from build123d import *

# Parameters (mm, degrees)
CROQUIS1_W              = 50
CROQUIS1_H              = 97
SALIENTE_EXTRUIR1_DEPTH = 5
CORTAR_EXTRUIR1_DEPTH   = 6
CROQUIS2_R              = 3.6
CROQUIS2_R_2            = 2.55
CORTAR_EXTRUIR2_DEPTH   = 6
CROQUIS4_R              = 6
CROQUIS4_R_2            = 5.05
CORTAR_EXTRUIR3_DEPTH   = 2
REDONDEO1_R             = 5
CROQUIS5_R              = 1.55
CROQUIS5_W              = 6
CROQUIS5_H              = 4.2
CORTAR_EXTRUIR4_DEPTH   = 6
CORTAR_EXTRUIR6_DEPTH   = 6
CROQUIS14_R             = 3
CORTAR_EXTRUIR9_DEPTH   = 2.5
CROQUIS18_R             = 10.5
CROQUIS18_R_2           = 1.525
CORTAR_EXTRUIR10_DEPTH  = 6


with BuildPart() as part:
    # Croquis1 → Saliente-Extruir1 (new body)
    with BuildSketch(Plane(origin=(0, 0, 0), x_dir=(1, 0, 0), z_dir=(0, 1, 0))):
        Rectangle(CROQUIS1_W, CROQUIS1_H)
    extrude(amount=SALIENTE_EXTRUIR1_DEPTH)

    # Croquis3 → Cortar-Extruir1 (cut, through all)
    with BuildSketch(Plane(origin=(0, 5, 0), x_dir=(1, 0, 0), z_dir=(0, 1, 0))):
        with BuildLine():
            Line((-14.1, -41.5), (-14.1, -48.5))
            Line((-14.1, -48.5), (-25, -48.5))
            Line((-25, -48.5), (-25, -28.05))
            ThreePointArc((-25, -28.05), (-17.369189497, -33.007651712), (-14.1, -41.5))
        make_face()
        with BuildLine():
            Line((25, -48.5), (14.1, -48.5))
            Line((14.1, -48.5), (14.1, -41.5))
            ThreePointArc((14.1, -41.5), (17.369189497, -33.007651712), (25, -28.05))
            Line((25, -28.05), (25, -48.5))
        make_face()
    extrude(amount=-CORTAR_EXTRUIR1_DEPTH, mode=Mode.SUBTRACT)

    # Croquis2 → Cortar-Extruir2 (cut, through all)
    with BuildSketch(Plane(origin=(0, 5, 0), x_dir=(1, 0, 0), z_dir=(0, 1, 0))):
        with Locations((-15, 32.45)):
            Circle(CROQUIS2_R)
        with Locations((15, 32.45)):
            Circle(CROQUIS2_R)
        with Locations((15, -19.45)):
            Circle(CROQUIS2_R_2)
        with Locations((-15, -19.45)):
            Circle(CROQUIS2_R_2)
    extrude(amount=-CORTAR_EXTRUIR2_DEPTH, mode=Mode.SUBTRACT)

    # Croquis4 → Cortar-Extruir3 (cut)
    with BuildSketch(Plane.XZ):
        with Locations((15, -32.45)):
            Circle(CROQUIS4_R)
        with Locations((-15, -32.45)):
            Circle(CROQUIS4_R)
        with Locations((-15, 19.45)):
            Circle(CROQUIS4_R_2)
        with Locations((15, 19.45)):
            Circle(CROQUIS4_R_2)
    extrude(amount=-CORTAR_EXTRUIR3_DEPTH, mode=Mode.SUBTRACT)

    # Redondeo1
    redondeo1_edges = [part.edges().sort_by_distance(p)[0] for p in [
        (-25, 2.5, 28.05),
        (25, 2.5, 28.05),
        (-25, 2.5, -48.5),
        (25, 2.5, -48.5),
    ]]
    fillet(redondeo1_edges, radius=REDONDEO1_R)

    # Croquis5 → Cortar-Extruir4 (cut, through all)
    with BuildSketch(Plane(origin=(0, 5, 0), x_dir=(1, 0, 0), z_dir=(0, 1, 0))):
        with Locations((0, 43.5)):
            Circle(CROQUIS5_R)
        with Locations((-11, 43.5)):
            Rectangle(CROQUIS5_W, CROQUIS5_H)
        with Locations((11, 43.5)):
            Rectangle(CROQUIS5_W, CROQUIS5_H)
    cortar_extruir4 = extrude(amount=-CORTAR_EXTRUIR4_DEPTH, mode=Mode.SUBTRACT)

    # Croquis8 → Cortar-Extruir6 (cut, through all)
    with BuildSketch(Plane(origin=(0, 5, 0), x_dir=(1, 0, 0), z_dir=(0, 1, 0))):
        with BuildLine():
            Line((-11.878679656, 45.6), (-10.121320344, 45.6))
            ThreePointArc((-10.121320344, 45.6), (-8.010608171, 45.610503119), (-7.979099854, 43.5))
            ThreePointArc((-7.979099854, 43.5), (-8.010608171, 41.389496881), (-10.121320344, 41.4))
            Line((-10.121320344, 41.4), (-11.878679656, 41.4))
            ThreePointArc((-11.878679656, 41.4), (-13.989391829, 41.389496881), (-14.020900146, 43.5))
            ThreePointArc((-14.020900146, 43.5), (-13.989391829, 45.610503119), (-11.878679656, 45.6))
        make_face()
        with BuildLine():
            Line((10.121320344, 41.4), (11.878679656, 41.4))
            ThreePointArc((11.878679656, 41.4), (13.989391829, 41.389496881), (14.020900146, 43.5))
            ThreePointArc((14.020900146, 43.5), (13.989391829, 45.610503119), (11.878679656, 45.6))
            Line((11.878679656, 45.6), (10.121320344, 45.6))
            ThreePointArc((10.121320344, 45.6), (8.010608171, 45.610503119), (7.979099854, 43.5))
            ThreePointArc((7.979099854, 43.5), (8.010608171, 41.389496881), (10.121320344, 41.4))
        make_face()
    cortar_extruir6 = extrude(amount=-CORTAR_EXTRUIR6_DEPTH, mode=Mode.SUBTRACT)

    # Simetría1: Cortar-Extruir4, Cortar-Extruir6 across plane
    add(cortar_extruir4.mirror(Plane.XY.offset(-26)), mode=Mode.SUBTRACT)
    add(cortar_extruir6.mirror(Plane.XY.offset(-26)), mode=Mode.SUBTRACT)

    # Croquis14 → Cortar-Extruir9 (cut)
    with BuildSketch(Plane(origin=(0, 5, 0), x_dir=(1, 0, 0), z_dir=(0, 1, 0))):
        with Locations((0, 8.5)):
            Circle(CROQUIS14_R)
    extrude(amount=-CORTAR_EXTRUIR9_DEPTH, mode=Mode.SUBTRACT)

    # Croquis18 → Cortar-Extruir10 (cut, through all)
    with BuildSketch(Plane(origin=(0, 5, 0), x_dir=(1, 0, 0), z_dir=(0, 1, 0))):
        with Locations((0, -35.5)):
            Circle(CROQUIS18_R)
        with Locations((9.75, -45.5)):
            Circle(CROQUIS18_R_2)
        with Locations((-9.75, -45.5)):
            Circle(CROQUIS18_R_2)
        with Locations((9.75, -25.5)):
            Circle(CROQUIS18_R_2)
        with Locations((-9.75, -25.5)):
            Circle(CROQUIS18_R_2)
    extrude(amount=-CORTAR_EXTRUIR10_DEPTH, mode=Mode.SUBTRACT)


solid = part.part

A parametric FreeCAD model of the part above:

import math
import FreeCAD as App
import Part
import Sketcher
from FreeCAD import Vector


def edges_at(feature, points):
    """Names of the edges that pass closest to the given points."""
    edges = feature.Shape.Edges
    near = lambda p: min(range(len(edges)), key=lambda i: edges[i].distToShape(Part.Vertex(*p))[0])
    return sorted({f"Edge{near(p) + 1}" for p in points})


def add_polygon(sketch, points):
    """Adds a closed chain of lines whose ends are joined by coincident constraints."""
    first, n = sketch.GeometryCount, len(points)
    for a, b in zip(points, points[1:] + points[:1]):
        sketch.addGeometry(Part.LineSegment(App.Vector(*a, 0), App.Vector(*b, 0)), False)
    for i in range(n):
        sketch.addConstraint(Sketcher.Constraint("Coincident", first + i, 2, first + (i + 1) % n, 1))

doc = App.newDocument("Part")
body = doc.addObject("PartDesign::Body", "Body")

# Sketch on XZ plane
sketch1 = body.newObject("Sketcher::SketchObject", "Sketch")
sketch1.AttachmentSupport = (doc.getObject("XZ_Plane"), [""])
sketch1.MapMode = "FlatFace"
add_polygon(sketch1, [(-25, -48.5), (-25, 48.5), (25, 48.5), (25, -48.5)])  # lines 0-3
sketch1.addConstraint([
    Sketcher.Constraint("Vertical", 0),
    Sketcher.Constraint("Horizontal", 1),
    Sketcher.Constraint("Vertical", 2),
    Sketcher.Constraint("Horizontal", 3),
    Sketcher.Constraint("Symmetric", 0, 2, 2, 2, -1, 1),
    Sketcher.Constraint("DistanceX", 1, 1, 1, 2, 50.0),
    Sketcher.Constraint("DistanceY", 0, 1, 0, 2, 97.0),
])
pad1 = body.newObject("PartDesign::Pad", "Pad")
pad1.Profile = sketch1
pad1.Length = 5
pad1.Reversed = True

# Sketch on XZ plane
sketch2 = body.newObject("Sketcher::SketchObject", "Sketch001")
sketch2.AttachmentSupport = (doc.getObject("XZ_Plane"), [""])
sketch2.MapMode = "FlatFace"
sketch2.AttachmentOffset = App.Placement(Vector(0, 0, -5), App.Rotation())
sketch2.addGeometry([
    Part.LineSegment(Vector(-14.1, 48.5, 0), Vector(-14.1, 41.5, 0)),  # 0
    Part.ArcOfCircle(Part.Circle(Vector(-28.828589, 42.294452, 0), Vector(0, 0, 1), 14.75), math.radians(-74.955725), math.radians(-3.087509)),  # 1
    Part.LineSegment(Vector(-25, 28.05, 0), Vector(-25, 48.5, 0)),  # 2
    Part.LineSegment(Vector(-25, 48.5, 0), Vector(-14.1, 48.5, 0)),  # 3
    Part.LineSegment(Vector(14.1, 48.5, 0), Vector(25, 48.5, 0)),  # 4
    Part.LineSegment(Vector(25, 48.5, 0), Vector(25, 28.05, 0)),  # 5
    Part.ArcOfCircle(Part.Circle(Vector(28.828589, 42.294452, 0), Vector(0, 0, 1), 14.75), math.radians(-176.912491), math.radians(-105.044275)),  # 6
    Part.LineSegment(Vector(14.1, 41.5, 0), Vector(14.1, 48.5, 0)),  # 7
], False)
sketch2.addConstraint([
    Sketcher.Constraint("Coincident", 0, 2, 1, 2),
    Sketcher.Constraint("Coincident", 1, 1, 2, 1),
    Sketcher.Constraint("Coincident", 2, 2, 3, 1),
    Sketcher.Constraint("Coincident", 3, 2, 0, 1),
    Sketcher.Constraint("Coincident", 4, 2, 5, 1),
    Sketcher.Constraint("Coincident", 5, 2, 6, 2),
    Sketcher.Constraint("Coincident", 6, 1, 7, 1),
    Sketcher.Constraint("Coincident", 7, 2, 4, 1),
    Sketcher.Constraint("Vertical", 0),
    Sketcher.Constraint("Vertical", 2),
    Sketcher.Constraint("Horizontal", 3),
    Sketcher.Constraint("Horizontal", 4),
    Sketcher.Constraint("Vertical", 5),
    Sketcher.Constraint("Vertical", 7),
    Sketcher.Constraint("Equal", 1, 6),
    Sketcher.Constraint("Symmetric", 1, 3, 6, 3, -2),
    Sketcher.Constraint("Symmetric", 2, 2, 4, 2, -2),
    Sketcher.Constraint("Horizontal", 0, 2, 6, 1),
    Sketcher.Constraint("DistanceY", 0, 2, 0, 1, 7.0),
    Sketcher.Constraint("Radius", 1, 14.75),
    Sketcher.Constraint("DistanceX", 3, 1, 3, 2, 10.9),
    Sketcher.Constraint("DistanceX", 1, 1, -1, 1, 25.0),
    Sketcher.Constraint("DistanceY", 2, 1, 2, 2, 20.45),
    Sketcher.Constraint("DistanceY", -1, 1, 0, 2, 41.5),
])
pocket1 = body.newObject("PartDesign::Pocket", "Pocket")
pocket1.Profile = sketch2
pocket1.Type = "ThroughAll"
pocket1.Reversed = True

# Sketch on XZ plane
sketch3 = body.newObject("Sketcher::SketchObject", "Sketch002")
sketch3.AttachmentSupport = (doc.getObject("XZ_Plane"), [""])
sketch3.MapMode = "FlatFace"
sketch3.AttachmentOffset = App.Placement(Vector(0, 0, -5), App.Rotation())
sketch3.addGeometry([
    Part.Circle(Vector(-15, -32.45, 0), Vector(0, 0, 1), 3.6),
    Part.Circle(Vector(15, -32.45, 0), Vector(0, 0, 1), 3.6),
    Part.Circle(Vector(15, 19.45, 0), Vector(0, 0, 1), 2.55),
    Part.Circle(Vector(-15, 19.45, 0), Vector(0, 0, 1), 2.55),
], False)
sketch3.addConstraint([
    Sketcher.Constraint("Equal", 0, 1),
    Sketcher.Constraint("Equal", 2, 3),
    Sketcher.Constraint("Symmetric", 0, 3, 1, 3, -2),
    Sketcher.Constraint("Symmetric", 2, 3, 3, 3, -2),
    Sketcher.Constraint("Vertical", 1, 3, 2, 3),
    Sketcher.Constraint("Diameter", 0, 7.2),
    Sketcher.Constraint("Diameter", 2, 5.1),
    Sketcher.Constraint("DistanceX", 0, 3, -1, 1, 15.0),
    Sketcher.Constraint("DistanceY", 1, 3, 2, 3, 51.9),
    Sketcher.Constraint("DistanceY", 0, 3, -1, 1, 32.45),
])
pocket2 = body.newObject("PartDesign::Pocket", "Pocket001")
pocket2.Profile = sketch3
pocket2.Type = "ThroughAll"
pocket2.Reversed = True

# Sketch on XZ plane
sketch4 = body.newObject("Sketcher::SketchObject", "Sketch003")
sketch4.AttachmentSupport = (doc.getObject("XZ_Plane"), [""])
sketch4.MapMode = "FlatFace"
sketch4.addGeometry([
    Part.Circle(Vector(15, -32.45, 0), Vector(0, 0, 1), 6),
    Part.Circle(Vector(-15, -32.45, 0), Vector(0, 0, 1), 6),
    Part.Circle(Vector(-15, 19.45, 0), Vector(0, 0, 1), 5.05),
    Part.Circle(Vector(15, 19.45, 0), Vector(0, 0, 1), 5.05),
], False)
sketch4.addConstraint([
    Sketcher.Constraint("Equal", 0, 1),
    Sketcher.Constraint("Equal", 2, 3),
    Sketcher.Constraint("Symmetric", 0, 3, 1, 3, -2),
    Sketcher.Constraint("Symmetric", 2, 3, 3, 3, -2),
    Sketcher.Constraint("Vertical", 1, 3, 2, 3),
    Sketcher.Constraint("Diameter", 0, 12.0),
    Sketcher.Constraint("Diameter", 2, 10.1),
    Sketcher.Constraint("DistanceX", -1, 1, 0, 3, 15.0),
    Sketcher.Constraint("DistanceY", 1, 3, 2, 3, 51.9),
    Sketcher.Constraint("DistanceY", 0, 3, -1, 1, 32.45),
])
pocket3 = body.newObject("PartDesign::Pocket", "Pocket002")
pocket3.Profile = sketch4
pocket3.Length = 2
doc.recompute()

fillet = body.newObject("PartDesign::Fillet", "Fillet")
fillet.Base = (pocket3, edges_at(pocket3, [
    (-25, 2.5, 28.05),
    (25, 2.5, 28.05),
    (-25, 2.5, -48.5),
    (25, 2.5, -48.5),
]))
fillet.Radius = 5

# Sketch on XZ plane
sketch5 = body.newObject("Sketcher::SketchObject", "Sketch004")
sketch5.AttachmentSupport = (doc.getObject("XZ_Plane"), [""])
sketch5.MapMode = "FlatFace"
sketch5.AttachmentOffset = App.Placement(Vector(0, 0, -5), App.Rotation())
sketch5.addGeometry(Part.Circle(Vector(0, -43.5, 0), Vector(0, 0, 1), 1.55), False)  # 0
add_polygon(sketch5, [(-14, -45.6), (-14, -41.4), (-8, -41.4), (-8, -45.6)])  # lines 1-4
add_polygon(sketch5, [(8, -45.6), (8, -41.4), (14, -41.4), (14, -45.6)])  # lines 5-8
sketch5.addConstraint([
    Sketcher.Constraint("Vertical", 1),
    Sketcher.Constraint("Horizontal", 2),
    Sketcher.Constraint("Vertical", 3),
    Sketcher.Constraint("Horizontal", 4),
    Sketcher.Constraint("Vertical", 5),
    Sketcher.Constraint("Horizontal", 6),
    Sketcher.Constraint("Vertical", 7),
    Sketcher.Constraint("Horizontal", 8),
    Sketcher.Constraint("Symmetric", 2, 2, 5, 2, -2),
    Sketcher.Constraint("Symmetric", 4, 2, 7, 2, -2),
    Sketcher.Constraint("PointOnObject", 0, 3, -2),
    Sketcher.Constraint("Diameter", 0, 3.1),
    Sketcher.Constraint("DistanceX", 2, 1, 2, 2, 6.0),
    Sketcher.Constraint("DistanceY", 1, 1, 1, 2, 4.2),
    Sketcher.Constraint("DistanceX", 1, 2, -1, 1, 14.0),
    Sketcher.Constraint("DistanceY", 0, 3, -1, 1, 43.5),
    Sketcher.Constraint("DistanceY", 1, 2, -1, 1, 41.4),
])
pocket4 = body.newObject("PartDesign::Pocket", "Pocket003")
pocket4.Profile = sketch5
pocket4.Type = "ThroughAll"
pocket4.Reversed = True

# Sketch on XZ plane
sketch6 = body.newObject("Sketcher::SketchObject", "Sketch005")
sketch6.AttachmentSupport = (doc.getObject("XZ_Plane"), [""])
sketch6.MapMode = "FlatFace"
sketch6.AttachmentOffset = App.Placement(Vector(0, 0, -5), App.Rotation())
sketch6.addGeometry([
    Part.LineSegment(Vector(-10.12132, -45.6, 0), Vector(-11.87868, -45.6, 0)),  # 0
    Part.ArcOfCircle(Part.Circle(Vector(-12.93934, -44.53934, 0), Vector(0, 0, 1), 1.5), math.radians(136.140429), math.radians(315)),  # 1
    Part.ArcOfCircle(Part.Circle(Vector(-12.93934, -42.46066, 0), Vector(0, 0, 1), 1.5), math.radians(45), math.radians(223.859571)),  # 2
    Part.LineSegment(Vector(-11.87868, -41.4, 0), Vector(-10.12132, -41.4, 0)),  # 3
    Part.ArcOfCircle(Part.Circle(Vector(-9.06066, -42.46066, 0), Vector(0, 0, 1), 1.5), math.radians(-43.859571), math.radians(135)),  # 4
    Part.ArcOfCircle(Part.Circle(Vector(-9.06066, -44.53934, 0), Vector(0, 0, 1), 1.5), math.radians(-135), math.radians(43.859571)),  # 5
    Part.LineSegment(Vector(10.12132, -41.4, 0), Vector(11.87868, -41.4, 0)),  # 6
    Part.ArcOfCircle(Part.Circle(Vector(12.93934, -42.46066, 0), Vector(0, 0, 1), 1.5), math.radians(-43.859571), math.radians(135)),  # 7
    Part.ArcOfCircle(Part.Circle(Vector(12.93934, -44.53934, 0), Vector(0, 0, 1), 1.5), math.radians(-135), math.radians(43.859571)),  # 8
    Part.LineSegment(Vector(11.87868, -45.6, 0), Vector(10.12132, -45.6, 0)),  # 9
    Part.ArcOfCircle(Part.Circle(Vector(9.06066, -44.53934, 0), Vector(0, 0, 1), 1.5), math.radians(136.140429), math.radians(315)),  # 10
    Part.ArcOfCircle(Part.Circle(Vector(9.06066, -42.46066, 0), Vector(0, 0, 1), 1.5), math.radians(45), math.radians(223.859571)),  # 11
], False)
sketch6.addConstraint([
    Sketcher.Constraint("Coincident", 0, 2, 1, 2),
    Sketcher.Constraint("Coincident", 1, 1, 2, 2),
    Sketcher.Constraint("Coincident", 2, 1, 3, 1),
    Sketcher.Constraint("Coincident", 3, 2, 4, 2),
    Sketcher.Constraint("Coincident", 4, 1, 5, 2),
    Sketcher.Constraint("Coincident", 5, 1, 0, 1),
    Sketcher.Constraint("Coincident", 6, 2, 7, 2),
    Sketcher.Constraint("Coincident", 7, 1, 8, 2),
    Sketcher.Constraint("Coincident", 8, 1, 9, 1),
    Sketcher.Constraint("Coincident", 9, 2, 10, 2),
    Sketcher.Constraint("Coincident", 10, 1, 11, 2),
    Sketcher.Constraint("Coincident", 11, 1, 6, 1),
    Sketcher.Constraint("Horizontal", 0),
    Sketcher.Constraint("Horizontal", 3),
    Sketcher.Constraint("Horizontal", 6),
    Sketcher.Constraint("Horizontal", 9),
    Sketcher.Constraint("Equal", 1, 2),
    Sketcher.Constraint("Equal", 2, 4),
    Sketcher.Constraint("Equal", 4, 5),
    Sketcher.Constraint("Equal", 5, 7),
    Sketcher.Constraint("Equal", 7, 8),
    Sketcher.Constraint("Equal", 8, 10),
    Sketcher.Constraint("Equal", 10, 11),
    Sketcher.Constraint("Symmetric", 2, 3, 7, 3, -2),
    Sketcher.Constraint("Symmetric", 1, 3, 8, 3, -2),
    Sketcher.Constraint("Symmetric", 5, 3, 10, 3, -2),
    Sketcher.Constraint("Symmetric", 4, 3, 11, 3, -2),
    Sketcher.Constraint("Horizontal", 2, 3, 4, 3),
    Sketcher.Constraint("Horizontal", 1, 3, 5, 3),
    Sketcher.Constraint("Horizontal", 1, 1, 4, 1),
    Sketcher.Constraint("Horizontal", 3, 2, 6, 2),
    Sketcher.Constraint("Horizontal", 5, 1, 8, 1),
    Sketcher.Constraint("Vertical", 1, 3, 2, 3),
    Sketcher.Constraint("Vertical", 0, 2, 2, 1),
    Sketcher.Constraint("Radius", 1, 1.5),
    Sketcher.Constraint("DistanceX", 4, 3, 7, 3, 22.0),
    Sketcher.Constraint("DistanceY", 0, 2, -1, 1, 45.6),
    Sketcher.Constraint("DistanceY", 1, 1, -1, 1, 43.5),
    Sketcher.Constraint("DistanceX", 0, 2, 0, 1, 1.757359),
    Sketcher.Constraint("DistanceX", 1, 1, -1, 1, 14.0209),
])
pocket5 = body.newObject("PartDesign::Pocket", "Pocket004")
pocket5.Profile = sketch6
pocket5.Type = "ThroughAll"
pocket5.Reversed = True
doc.recompute()

datumplane = body.newObject("PartDesign::Plane", "DatumPlane")
datumplane.AttachmentSupport = (doc.getObject("XY_Plane"), [""])
datumplane.MapMode = "FlatFace"
datumplane.AttachmentOffset = App.Placement(Vector(0, 0, -26), App.Rotation())
mirrored = body.newObject("PartDesign::Mirrored", "Mirrored")
mirrored.Originals = [pocket4, pocket5]
mirrored.MirrorPlane = (datumplane, [""])
body.Tip = mirrored

# Sketch on XZ plane
sketch7 = body.newObject("Sketcher::SketchObject", "Sketch006")
sketch7.AttachmentSupport = (doc.getObject("XZ_Plane"), [""])
sketch7.MapMode = "FlatFace"
sketch7.AttachmentOffset = App.Placement(Vector(0, 0, -5), App.Rotation())
sketch7.addGeometry(Part.Circle(Vector(0, -8.5, 0), Vector(0, 0, 1), 3), False)
sketch7.addConstraint([
    Sketcher.Constraint("PointOnObject", 0, 3, -2),
    Sketcher.Constraint("Diameter", 0, 6.0),
    Sketcher.Constraint("DistanceY", 0, 3, -1, 1, 8.5),
])
pocket6 = body.newObject("PartDesign::Pocket", "Pocket005")
pocket6.Profile = sketch7
pocket6.Length = 2.5
pocket6.Reversed = True

# Sketch on XZ plane
sketch8 = body.newObject("Sketcher::SketchObject", "Sketch007")
sketch8.AttachmentSupport = (doc.getObject("XZ_Plane"), [""])
sketch8.MapMode = "FlatFace"
sketch8.AttachmentOffset = App.Placement(Vector(0, 0, -5), App.Rotation())
sketch8.addGeometry([
    Part.Circle(Vector(0, 35.5, 0), Vector(0, 0, 1), 10.5),  # 0
    Part.Circle(Vector(9.75, 45.5, 0), Vector(0, 0, 1), 1.525),  # 1
    Part.Circle(Vector(-9.75, 45.5, 0), Vector(0, 0, 1), 1.525),  # 2
    Part.Circle(Vector(9.75, 25.5, 0), Vector(0, 0, 1), 1.525),  # 3
    Part.Circle(Vector(-9.75, 25.5, 0), Vector(0, 0, 1), 1.525),  # 4
], False)
sketch8.addConstraint([
    Sketcher.Constraint("Equal", 1, 2),
    Sketcher.Constraint("Equal", 2, 3),
    Sketcher.Constraint("Equal", 3, 4),
    Sketcher.Constraint("Symmetric", 1, 3, 2, 3, -2),
    Sketcher.Constraint("Symmetric", 3, 3, 4, 3, -2),
    Sketcher.Constraint("PointOnObject", 0, 3, -2),
    Sketcher.Constraint("Vertical", 1, 3, 3, 3),
    Sketcher.Constraint("Diameter", 0, 21.0),
    Sketcher.Constraint("Diameter", 1, 3.05),
    Sketcher.Constraint("DistanceY", 0, 3, 1, 3, 10.0),
    Sketcher.Constraint("DistanceY", 3, 3, 0, 3, 10.0),
    Sketcher.Constraint("DistanceY", -1, 1, 0, 3, 35.5),
    Sketcher.Constraint("DistanceX", 2, 3, 1, 3, 19.5),
])
pocket7 = body.newObject("PartDesign::Pocket", "Pocket006")
pocket7.Profile = sketch8
pocket7.Type = "ThroughAll"
pocket7.Reversed = True

doc.recompute()
